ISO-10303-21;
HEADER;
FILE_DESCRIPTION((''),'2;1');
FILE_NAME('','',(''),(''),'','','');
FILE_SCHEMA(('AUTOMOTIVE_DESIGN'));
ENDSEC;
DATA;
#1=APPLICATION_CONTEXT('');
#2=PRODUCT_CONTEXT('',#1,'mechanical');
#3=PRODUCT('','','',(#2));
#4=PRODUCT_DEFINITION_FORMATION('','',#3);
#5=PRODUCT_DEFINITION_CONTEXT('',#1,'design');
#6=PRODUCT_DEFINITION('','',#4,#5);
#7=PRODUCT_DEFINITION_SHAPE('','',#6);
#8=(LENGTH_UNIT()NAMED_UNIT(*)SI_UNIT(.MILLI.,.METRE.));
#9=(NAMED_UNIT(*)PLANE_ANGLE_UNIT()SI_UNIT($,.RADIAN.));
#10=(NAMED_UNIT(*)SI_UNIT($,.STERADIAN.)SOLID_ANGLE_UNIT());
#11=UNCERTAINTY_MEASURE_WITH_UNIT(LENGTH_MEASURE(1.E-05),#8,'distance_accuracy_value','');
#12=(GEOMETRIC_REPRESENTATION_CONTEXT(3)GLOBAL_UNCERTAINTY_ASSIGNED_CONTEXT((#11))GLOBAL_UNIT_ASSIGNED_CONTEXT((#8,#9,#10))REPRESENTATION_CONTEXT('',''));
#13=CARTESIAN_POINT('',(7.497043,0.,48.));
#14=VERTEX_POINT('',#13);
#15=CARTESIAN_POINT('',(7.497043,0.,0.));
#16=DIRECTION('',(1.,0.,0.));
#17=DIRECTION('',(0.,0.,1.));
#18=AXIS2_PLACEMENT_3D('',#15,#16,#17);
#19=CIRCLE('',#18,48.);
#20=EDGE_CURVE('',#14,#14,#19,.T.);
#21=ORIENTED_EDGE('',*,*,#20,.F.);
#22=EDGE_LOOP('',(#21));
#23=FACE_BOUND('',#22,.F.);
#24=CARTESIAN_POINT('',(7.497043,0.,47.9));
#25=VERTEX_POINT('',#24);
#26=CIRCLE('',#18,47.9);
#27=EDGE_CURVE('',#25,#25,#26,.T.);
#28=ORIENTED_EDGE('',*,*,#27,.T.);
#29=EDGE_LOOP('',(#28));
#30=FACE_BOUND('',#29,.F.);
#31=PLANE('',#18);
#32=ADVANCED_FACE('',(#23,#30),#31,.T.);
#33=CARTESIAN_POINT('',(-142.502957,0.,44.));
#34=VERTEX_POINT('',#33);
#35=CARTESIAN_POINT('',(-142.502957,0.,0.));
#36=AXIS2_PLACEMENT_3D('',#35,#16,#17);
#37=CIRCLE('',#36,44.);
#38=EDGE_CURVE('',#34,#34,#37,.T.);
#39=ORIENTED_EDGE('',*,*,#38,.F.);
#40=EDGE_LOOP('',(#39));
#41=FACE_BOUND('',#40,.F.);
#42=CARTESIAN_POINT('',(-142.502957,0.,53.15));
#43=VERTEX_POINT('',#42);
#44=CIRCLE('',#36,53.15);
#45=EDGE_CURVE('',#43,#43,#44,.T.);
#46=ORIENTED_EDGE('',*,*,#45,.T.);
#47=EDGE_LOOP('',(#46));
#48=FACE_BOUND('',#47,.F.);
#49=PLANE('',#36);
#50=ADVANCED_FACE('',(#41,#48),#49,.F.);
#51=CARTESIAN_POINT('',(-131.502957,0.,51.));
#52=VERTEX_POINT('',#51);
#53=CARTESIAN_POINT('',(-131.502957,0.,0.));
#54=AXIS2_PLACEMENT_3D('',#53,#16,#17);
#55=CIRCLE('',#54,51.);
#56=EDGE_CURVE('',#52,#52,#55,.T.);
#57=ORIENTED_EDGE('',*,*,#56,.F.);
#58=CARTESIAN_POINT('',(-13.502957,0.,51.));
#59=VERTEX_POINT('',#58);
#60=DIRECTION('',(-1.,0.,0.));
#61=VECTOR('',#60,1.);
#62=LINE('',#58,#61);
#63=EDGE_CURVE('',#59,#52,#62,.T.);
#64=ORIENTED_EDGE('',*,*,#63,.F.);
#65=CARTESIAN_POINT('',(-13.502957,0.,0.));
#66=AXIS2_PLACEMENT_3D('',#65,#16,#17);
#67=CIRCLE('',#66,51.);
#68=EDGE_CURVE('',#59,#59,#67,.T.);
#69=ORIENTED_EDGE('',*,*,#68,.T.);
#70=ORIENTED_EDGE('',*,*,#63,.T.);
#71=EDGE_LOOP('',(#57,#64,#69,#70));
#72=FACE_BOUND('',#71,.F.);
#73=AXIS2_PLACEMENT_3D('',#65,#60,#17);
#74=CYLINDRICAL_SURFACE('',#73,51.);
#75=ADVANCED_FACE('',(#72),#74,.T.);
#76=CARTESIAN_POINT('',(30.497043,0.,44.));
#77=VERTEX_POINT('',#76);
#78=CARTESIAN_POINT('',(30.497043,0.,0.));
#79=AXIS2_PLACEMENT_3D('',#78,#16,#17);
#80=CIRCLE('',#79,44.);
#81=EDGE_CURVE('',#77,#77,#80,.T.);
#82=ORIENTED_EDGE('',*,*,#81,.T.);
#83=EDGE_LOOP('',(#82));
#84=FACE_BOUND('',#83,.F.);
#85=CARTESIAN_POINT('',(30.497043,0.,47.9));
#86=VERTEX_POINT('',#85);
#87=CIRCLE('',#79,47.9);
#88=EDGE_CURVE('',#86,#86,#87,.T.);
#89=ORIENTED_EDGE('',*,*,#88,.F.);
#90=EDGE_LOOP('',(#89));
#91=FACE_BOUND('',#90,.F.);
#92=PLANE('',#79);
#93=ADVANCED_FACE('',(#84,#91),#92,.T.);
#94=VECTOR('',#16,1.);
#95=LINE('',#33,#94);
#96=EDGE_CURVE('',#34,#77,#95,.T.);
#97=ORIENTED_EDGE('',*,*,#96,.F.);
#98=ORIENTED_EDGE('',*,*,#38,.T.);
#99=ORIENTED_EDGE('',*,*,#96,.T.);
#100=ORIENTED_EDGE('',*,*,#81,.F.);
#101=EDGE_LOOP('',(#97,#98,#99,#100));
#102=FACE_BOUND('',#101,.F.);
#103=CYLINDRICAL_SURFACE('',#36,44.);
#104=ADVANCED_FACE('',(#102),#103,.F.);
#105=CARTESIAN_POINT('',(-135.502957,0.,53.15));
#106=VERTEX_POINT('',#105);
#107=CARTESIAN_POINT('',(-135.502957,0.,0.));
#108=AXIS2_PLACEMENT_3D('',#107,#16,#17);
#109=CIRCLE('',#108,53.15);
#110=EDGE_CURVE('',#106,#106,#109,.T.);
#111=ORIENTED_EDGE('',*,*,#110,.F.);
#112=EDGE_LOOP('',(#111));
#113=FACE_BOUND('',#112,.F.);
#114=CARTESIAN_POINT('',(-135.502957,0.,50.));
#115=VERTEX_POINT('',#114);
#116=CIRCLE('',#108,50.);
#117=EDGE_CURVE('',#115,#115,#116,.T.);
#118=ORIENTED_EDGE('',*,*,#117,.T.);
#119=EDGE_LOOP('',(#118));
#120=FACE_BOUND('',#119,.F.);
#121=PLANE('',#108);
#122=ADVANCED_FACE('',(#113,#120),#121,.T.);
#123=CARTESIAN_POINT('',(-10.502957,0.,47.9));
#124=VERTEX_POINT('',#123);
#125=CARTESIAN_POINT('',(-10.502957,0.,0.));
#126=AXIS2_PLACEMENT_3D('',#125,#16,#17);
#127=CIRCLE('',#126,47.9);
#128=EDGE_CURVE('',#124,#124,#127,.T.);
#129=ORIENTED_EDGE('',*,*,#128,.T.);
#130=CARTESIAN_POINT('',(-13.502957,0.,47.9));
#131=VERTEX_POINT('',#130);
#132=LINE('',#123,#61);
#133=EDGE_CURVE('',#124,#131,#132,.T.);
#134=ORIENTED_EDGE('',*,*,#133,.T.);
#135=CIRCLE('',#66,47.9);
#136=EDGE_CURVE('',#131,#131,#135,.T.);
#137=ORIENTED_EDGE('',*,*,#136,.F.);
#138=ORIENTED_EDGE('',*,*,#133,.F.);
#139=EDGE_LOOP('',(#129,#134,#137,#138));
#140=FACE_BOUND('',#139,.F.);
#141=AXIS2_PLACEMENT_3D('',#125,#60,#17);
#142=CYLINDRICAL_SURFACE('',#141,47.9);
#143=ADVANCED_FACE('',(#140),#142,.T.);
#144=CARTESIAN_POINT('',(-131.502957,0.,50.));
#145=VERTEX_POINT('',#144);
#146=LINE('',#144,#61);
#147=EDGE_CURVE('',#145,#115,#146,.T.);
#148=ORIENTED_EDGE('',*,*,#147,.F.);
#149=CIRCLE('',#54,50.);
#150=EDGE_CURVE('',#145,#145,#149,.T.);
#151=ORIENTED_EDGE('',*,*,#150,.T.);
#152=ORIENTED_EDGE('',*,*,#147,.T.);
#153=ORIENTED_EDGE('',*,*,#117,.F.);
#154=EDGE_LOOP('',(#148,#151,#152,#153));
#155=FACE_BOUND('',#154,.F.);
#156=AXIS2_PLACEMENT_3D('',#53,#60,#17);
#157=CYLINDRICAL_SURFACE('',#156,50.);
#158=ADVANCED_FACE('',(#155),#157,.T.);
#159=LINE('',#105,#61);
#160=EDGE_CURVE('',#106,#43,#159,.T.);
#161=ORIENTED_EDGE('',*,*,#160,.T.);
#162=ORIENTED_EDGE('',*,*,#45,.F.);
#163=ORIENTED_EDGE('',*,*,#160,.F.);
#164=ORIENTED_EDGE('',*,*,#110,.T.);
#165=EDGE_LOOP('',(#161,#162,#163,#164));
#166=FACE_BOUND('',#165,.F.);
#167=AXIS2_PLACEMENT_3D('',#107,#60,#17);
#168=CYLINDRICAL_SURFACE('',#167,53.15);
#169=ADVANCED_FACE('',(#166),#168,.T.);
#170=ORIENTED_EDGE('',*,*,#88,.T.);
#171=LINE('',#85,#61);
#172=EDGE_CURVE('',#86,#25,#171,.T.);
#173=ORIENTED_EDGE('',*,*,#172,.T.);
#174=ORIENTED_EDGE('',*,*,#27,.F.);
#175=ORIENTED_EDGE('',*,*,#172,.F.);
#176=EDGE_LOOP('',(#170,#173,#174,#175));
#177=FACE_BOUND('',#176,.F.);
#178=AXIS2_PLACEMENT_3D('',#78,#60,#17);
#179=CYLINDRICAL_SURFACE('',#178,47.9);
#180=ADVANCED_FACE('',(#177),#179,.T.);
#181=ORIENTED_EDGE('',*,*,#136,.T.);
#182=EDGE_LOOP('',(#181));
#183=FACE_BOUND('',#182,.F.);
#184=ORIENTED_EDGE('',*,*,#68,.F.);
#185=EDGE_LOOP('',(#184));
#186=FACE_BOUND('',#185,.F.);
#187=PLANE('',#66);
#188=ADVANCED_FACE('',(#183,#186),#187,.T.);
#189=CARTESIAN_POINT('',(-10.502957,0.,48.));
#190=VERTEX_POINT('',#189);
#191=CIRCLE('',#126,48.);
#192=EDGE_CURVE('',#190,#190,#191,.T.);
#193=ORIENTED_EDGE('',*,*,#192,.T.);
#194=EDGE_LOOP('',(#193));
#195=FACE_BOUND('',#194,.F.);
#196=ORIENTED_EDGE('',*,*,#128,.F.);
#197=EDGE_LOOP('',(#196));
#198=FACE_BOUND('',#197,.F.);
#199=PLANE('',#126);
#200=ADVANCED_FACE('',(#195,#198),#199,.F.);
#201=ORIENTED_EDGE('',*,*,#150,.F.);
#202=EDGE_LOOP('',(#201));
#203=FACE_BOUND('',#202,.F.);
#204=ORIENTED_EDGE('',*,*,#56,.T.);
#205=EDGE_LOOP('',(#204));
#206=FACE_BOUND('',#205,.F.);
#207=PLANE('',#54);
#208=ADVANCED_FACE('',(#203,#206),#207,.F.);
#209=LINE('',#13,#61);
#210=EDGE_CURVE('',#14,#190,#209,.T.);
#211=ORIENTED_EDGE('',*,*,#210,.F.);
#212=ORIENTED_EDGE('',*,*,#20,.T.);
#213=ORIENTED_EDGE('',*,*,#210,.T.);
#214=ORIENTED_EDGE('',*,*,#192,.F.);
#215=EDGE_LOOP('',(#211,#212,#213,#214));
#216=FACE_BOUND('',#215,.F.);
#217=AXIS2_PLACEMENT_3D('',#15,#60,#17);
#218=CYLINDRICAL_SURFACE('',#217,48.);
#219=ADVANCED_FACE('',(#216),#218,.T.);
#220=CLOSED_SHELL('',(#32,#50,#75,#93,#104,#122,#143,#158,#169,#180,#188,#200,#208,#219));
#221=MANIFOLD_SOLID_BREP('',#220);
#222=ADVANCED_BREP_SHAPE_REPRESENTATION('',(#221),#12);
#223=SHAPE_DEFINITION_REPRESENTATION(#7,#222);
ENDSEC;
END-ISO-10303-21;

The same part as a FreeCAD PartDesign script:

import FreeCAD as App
import Part
import Sketcher

V = App.Vector
Q = App.Units.Quantity

doc = App.newDocument("Part")
body = doc.addObject("PartDesign::Body", "Body")

sketch1 = body.newObject("Sketcher::SketchObject", "Sketch")
sketch1.AttachmentSupport = (doc.getObject("XZ_Plane"), [""])
sketch1.MapMode = "FlatFace"
sketch1.addGeometry([
    Part.LineSegment(V(-142.5, 53.15, 0), V(-142.5, 44, 0)),
    Part.LineSegment(V(-142.5, 44, 0), V(30.5, 44, 0)),
    Part.LineSegment(V(30.5, 44, 0), V(30.5, 47.9, 0)),
    Part.LineSegment(V(30.5, 47.9, 0), V(7.5, 47.9, 0)),
    Part.LineSegment(V(7.5, 47.9, 0), V(7.5, 48, 0)),
    Part.LineSegment(V(7.5, 48, 0), V(-10.5, 48, 0)),
    Part.LineSegment(V(-10.5, 48, 0), V(-10.5, 47.9, 0)),
    Part.LineSegment(V(-10.5, 47.9, 0), V(-13.5, 47.9, 0)),
    Part.LineSegment(V(-13.5, 47.9, 0), V(-13.5, 51, 0)),
    Part.LineSegment(V(-13.5, 51, 0), V(-131.5, 51, 0)),
    Part.LineSegment(V(-131.5, 51, 0), V(-131.5, 50, 0)),
    Part.LineSegment(V(-131.5, 50, 0), V(-135.5, 50, 0)),
    Part.LineSegment(V(-135.5, 50, 0), V(-135.5, 53.15, 0)),
    Part.LineSegment(V(-135.5, 53.15, 0), V(-142.5, 53.15, 0)),
], False)
sketch1.addConstraint([
    Sketcher.Constraint("Coincident", 0, 2, 1, 1),
    Sketcher.Constraint("Coincident", 1, 2, 2, 1),
    Sketcher.Constraint("Coincident", 2, 2, 3, 1),
    Sketcher.Constraint("Coincident", 3, 2, 4, 1),
    Sketcher.Constraint("Coincident", 4, 2, 5, 1),
    Sketcher.Constraint("Coincident", 5, 2, 6, 1),
    Sketcher.Constraint("Coincident", 6, 2, 7, 1),
    Sketcher.Constraint("Coincident", 7, 2, 8, 1),
    Sketcher.Constraint("Coincident", 8, 2, 9, 1),
    Sketcher.Constraint("Coincident", 9, 2, 10, 1),
    Sketcher.Constraint("Coincident", 10, 2, 11, 1),
    Sketcher.Constraint("Coincident", 11, 2, 12, 1),
    Sketcher.Constraint("Coincident", 12, 2, 13, 1),
    Sketcher.Constraint("Coincident", 13, 2, 0, 1),
    Sketcher.Constraint("Vertical", 0),
    Sketcher.Constraint("Horizontal", 1),
    Sketcher.Constraint("Vertical", 2),
    Sketcher.Constraint("Horizontal", 3),
    Sketcher.Constraint("Vertical", 4),
    Sketcher.Constraint("Horizontal", 5),
    Sketcher.Constraint("Vertical", 6),
    Sketcher.Constraint("Horizontal", 7),
    Sketcher.Constraint("Vertical", 8),
    Sketcher.Constraint("Horizontal", 9),
    Sketcher.Constraint("Vertical", 10),
    Sketcher.Constraint("Horizontal", 11),
    Sketcher.Constraint("Vertical", 12),
    Sketcher.Constraint("Horizontal", 13),
    Sketcher.Constraint("Horizontal", 3, 2, 6, 2),
    Sketcher.Constraint("DistanceX", 1, 1, 1, 2, Q("173 mm")),
    Sketcher.Constraint("DistanceX", 3, 2, 3, 1, Q("23 mm")),
    Sketcher.Constraint("DistanceX", 5, 2, 5, 1, Q("18 mm")),
    Sketcher.Constraint("DistanceX", 7, 2, 7, 1, Q("3 mm")),
    Sketcher.Constraint("DistanceX", 9, 2, 9, 1, Q("118 mm")),
    Sketcher.Constraint("DistanceX", 11, 2, 11, 1, Q("4 mm")),
    Sketcher.Constraint("DistanceY", 10, 2, 10, 1, Q("1 mm")),
    Sketcher.Constraint("DistanceY", 2, 1, 2, 2, Q("3.9 mm")),
    Sketcher.Constraint("DistanceY", 4, 1, 4, 2, Q("0.1 mm")),
    Sketcher.Constraint("DistanceY", 8, 1, 8, 2, Q("3.1 mm")),
    Sketcher.Constraint("DistanceY", -1, 1, 0, 2, Q("44 mm")),
    Sketcher.Constraint("DistanceY", 0, 2, 0, 1, Q("9.15 mm")),
    Sketcher.Constraint("DistanceX", 0, 2, -1, 1, Q("142.502957 mm")),
])
revolution = body.newObject("PartDesign::Revolution", "Revolution")
revolution.Profile = sketch1
revolution.ReferenceAxis = (sketch1, ["H_Axis"])
revolution.Angle = 360

doc.recompute()
